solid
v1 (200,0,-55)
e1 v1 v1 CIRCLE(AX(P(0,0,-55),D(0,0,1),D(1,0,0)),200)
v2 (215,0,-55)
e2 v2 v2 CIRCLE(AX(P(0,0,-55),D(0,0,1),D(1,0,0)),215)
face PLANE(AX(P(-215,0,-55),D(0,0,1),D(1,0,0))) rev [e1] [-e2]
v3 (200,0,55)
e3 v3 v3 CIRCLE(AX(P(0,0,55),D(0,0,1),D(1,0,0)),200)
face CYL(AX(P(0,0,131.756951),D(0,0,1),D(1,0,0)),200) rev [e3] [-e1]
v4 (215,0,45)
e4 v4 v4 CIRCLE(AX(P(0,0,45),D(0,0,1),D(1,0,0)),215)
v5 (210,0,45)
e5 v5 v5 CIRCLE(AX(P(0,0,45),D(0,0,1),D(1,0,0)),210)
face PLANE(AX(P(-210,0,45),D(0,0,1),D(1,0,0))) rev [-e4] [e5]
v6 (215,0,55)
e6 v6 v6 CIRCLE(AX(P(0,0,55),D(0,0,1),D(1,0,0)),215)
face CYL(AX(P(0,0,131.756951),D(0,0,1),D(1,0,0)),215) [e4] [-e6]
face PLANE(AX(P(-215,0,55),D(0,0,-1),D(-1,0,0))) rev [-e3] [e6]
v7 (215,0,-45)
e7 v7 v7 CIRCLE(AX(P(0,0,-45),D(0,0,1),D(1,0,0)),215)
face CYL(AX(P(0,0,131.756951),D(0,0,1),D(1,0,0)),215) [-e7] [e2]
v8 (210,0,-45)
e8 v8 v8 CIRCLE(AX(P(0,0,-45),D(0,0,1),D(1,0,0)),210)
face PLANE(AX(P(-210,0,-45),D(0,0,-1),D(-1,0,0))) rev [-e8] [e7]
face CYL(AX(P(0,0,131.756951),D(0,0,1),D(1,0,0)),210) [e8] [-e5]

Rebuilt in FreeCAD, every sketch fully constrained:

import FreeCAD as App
import Part
import Sketcher
from FreeCAD import Vector
Q = App.Units.Quantity


def add_polygon(sketch, points):
    """Adds a closed chain of lines whose ends are joined by coincident constraints."""
    first, n = sketch.GeometryCount, len(points)
    for a, b in zip(points, points[1:] + points[:1]):
        sketch.addGeometry(Part.LineSegment(App.Vector(*a, 0), App.Vector(*b, 0)), False)
    for i in range(n):
        sketch.addConstraint(Sketcher.Constraint("Coincident", first + i, 2, first + (i + 1) % n, 1))

doc = App.newDocument("Part")
body = doc.addObject("PartDesign::Body", "Body")

sketch1 = doc.addObject("Sketcher::SketchObject", "Sketch")
body.addObject(sketch1)
sketch1.AttachmentSupport = (doc.XZ_Plane, [""])
sketch1.MapMode = "FlatFace"
add_polygon(sketch1, [(-215, -45), (-210, -45), (-210, 45), (-215, 45), (-215, 55), (-200, 55), (-200, -55), (-215, -55)])
sketch1.addConstraint([
    Sketcher.Constraint("Horizontal", 0),
    Sketcher.Constraint("Vertical", 1),
    Sketcher.Constraint("Horizontal", 2),
    Sketcher.Constraint("Vertical", 3),
    Sketcher.Constraint("Horizontal", 4),
    Sketcher.Constraint("Vertical", 5),
    Sketcher.Constraint("Horizontal", 6),
    Sketcher.Constraint("Vertical", 7),
    Sketcher.Constraint("Symmetric", 3, 2, 6, 2, -1),
    Sketcher.Constraint("Equal", 3, 7),
    Sketcher.Constraint("DistanceX", 0, 1, 0, 2, Q("5 mm")),
    Sketcher.Constraint("DistanceX", 4, 1, 4, 2, Q("15 mm")),
    Sketcher.Constraint("DistanceY", 1, 1, 1, 2, Q("90 mm")),
    Sketcher.Constraint("DistanceY", 3, 1, 3, 2, Q("10 mm")),
    Sketcher.Constraint("DistanceX", 0, 2, -1, 1, Q("210 mm")),
])
revolution = doc.addObject("PartDesign::Revolution", "Revolution")
body.addObject(revolution)
revolution.Profile = sketch1
revolution.ReferenceAxis = (sketch1, ["V_Axis"])
revolution.Angle = 360

doc.recompute()
